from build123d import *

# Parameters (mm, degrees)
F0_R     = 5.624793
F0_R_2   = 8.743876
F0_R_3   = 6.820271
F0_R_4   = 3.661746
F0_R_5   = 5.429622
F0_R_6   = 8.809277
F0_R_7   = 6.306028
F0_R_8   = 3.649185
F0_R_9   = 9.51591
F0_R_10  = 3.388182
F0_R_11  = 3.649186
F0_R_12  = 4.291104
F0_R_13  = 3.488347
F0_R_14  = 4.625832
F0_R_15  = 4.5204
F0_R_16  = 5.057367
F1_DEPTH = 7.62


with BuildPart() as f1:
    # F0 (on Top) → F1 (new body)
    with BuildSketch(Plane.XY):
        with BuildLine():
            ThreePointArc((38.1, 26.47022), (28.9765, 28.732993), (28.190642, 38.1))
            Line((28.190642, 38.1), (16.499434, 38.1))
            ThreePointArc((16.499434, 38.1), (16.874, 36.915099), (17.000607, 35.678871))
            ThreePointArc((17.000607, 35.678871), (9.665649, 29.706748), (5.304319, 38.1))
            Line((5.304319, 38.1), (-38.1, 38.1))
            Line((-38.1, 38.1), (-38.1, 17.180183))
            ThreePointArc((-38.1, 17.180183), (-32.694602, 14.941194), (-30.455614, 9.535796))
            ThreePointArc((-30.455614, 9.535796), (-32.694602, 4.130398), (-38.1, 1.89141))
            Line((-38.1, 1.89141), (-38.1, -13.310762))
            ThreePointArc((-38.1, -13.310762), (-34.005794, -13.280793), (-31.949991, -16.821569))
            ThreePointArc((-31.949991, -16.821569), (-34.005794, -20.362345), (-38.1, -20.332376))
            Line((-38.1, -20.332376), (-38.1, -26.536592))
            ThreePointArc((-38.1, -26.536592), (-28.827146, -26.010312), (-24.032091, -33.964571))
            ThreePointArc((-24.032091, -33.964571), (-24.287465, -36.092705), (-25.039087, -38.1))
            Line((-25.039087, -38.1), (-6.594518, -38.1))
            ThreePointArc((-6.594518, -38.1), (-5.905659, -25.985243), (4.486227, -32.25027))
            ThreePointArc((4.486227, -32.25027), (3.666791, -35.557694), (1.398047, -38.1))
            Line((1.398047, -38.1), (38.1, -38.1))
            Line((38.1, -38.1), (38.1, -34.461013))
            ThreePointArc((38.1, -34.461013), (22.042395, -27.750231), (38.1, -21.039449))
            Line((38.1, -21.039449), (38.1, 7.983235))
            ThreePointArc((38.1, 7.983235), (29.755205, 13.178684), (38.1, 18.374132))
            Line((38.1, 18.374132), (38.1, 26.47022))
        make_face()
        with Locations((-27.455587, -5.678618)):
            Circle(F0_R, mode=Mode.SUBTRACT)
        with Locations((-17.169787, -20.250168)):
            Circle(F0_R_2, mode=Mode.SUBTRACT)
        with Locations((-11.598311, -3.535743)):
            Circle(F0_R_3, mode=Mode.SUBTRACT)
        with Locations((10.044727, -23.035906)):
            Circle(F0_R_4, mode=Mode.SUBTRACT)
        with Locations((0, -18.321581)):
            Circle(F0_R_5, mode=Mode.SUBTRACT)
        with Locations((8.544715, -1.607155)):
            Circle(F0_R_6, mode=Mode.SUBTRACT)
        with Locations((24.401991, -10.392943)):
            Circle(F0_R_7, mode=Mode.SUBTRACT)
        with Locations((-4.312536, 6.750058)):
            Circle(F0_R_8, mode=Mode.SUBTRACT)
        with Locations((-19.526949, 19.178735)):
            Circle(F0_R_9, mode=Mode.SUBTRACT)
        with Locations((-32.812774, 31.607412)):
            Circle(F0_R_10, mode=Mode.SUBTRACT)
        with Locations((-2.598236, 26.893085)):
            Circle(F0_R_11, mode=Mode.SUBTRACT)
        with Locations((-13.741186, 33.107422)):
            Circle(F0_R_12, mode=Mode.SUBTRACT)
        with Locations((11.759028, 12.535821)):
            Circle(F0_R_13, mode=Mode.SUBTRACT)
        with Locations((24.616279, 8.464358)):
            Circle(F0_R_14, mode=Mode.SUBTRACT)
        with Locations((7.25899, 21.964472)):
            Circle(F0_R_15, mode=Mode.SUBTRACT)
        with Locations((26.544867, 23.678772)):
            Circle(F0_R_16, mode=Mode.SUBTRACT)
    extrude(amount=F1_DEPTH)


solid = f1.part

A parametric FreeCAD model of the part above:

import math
import FreeCAD as App
import Part
import Sketcher
from FreeCAD import Vector
Q = App.Units.Quantity

doc = App.newDocument("Part")
body = doc.addObject("PartDesign::Body", "Body")

# Sketch on XY plane
sketch1 = body.newObject("Sketcher::SketchObject", "Sketch")
sketch1.AttachmentSupport = (doc.getObject("XY_Plane"), [""])
sketch1.MapMode = "FlatFace"
sketch1.addGeometry([
    Part.ArcOfCircle(Part.Circle(Vector(35.1, 34, 0), Vector(0, 0, 1), 8.1), math.radians(149), math.radians(292)),  # 0
    Part.LineSegment(Vector(28.2, 38.1, 0), Vector(16.5, 38.1, 0)),  # 1
    Part.ArcOfCircle(Part.Circle(Vector(10.9, 35.7, 0), Vector(0, 0, 1), 6.1), math.radians(0), math.radians(23)),  # 2
    Part.ArcOfCircle(Part.Circle(Vector(10.9, 35.7, 0), Vector(0, 0, 1), 6.1), math.radians(157), math.radians(360)),  # 3
    Part.LineSegment(Vector(5.3, 38.1, 0), Vector(-38.1, 38.1, 0)),  # 4
    Part.LineSegment(Vector(-38.1, 38.1, 0), Vector(-38.1, 17.2, 0)),  # 5
    Part.ArcOfCircle(Part.Circle(Vector(-38.1, 9.5, 0), Vector(0, 0, 1), 7.6), math.radians(0), math.radians(90)),  # 6
    Part.ArcOfCircle(Part.Circle(Vector(-38.1, 9.5, 0), Vector(0, 0, 1), 7.6), math.radians(-90), math.radians(0)),  # 7
    Part.LineSegment(Vector(-38.1, 1.9, 0), Vector(-38.1, -13.3, 0)),  # 8
    Part.ArcOfCircle(Part.Circle(Vector(-36, -16.8, 0), Vector(0, 0, 1), 4.1), math.radians(0), math.radians(121)),  # 9
    Part.ArcOfCircle(Part.Circle(Vector(-36, -16.8, 0), Vector(0, 0, 1), 4.1), math.radians(-121), math.radians(0)),  # 10
    Part.LineSegment(Vector(-38.1, -20.3, 0), Vector(-38.1, -26.5, 0)),  # 11
    Part.ArcOfCircle(Part.Circle(Vector(-33, -34, 0), Vector(0, 0, 1), 9), math.radians(0), math.radians(124)),  # 12
    Part.ArcOfCircle(Part.Circle(Vector(-33, -34, 0), Vector(0, 0, 1), 9), math.radians(-27), math.radians(0)),  # 13
    Part.LineSegment(Vector(-25, -38.1, 0), Vector(-6.6, -38.1, 0)),  # 14
    Part.ArcOfCircle(Part.Circle(Vector(-2.6, -32.3, 0), Vector(0, 0, 1), 7.1), math.radians(0), math.radians(236)),  # 15
    Part.ArcOfCircle(Part.Circle(Vector(-2.6, -32.3, 0), Vector(0, 0, 1), 7.1), math.radians(-56), math.radians(0)),  # 16
    Part.LineSegment(Vector(1.4, -38.1, 0), Vector(38.1, -38.1, 0)),  # 17
    Part.LineSegment(Vector(38.1, -38.1, 0), Vector(38.1, -34.5, 0)),  # 18
    Part.ArcOfCircle(Part.Circle(Vector(31.5, -27.8, 0), Vector(0, 0, 1), 9.4), math.radians(45), math.radians(315)),  # 19
    Part.LineSegment(Vector(38.1, -21, 0), Vector(38.1, 8, 0)),  # 20
    Part.ArcOfCircle(Part.Circle(Vector(35.5, 13.2, 0), Vector(0, 0, 1), 5.8), math.radians(64), math.radians(296)),  # 21
    Part.LineSegment(Vector(38.1, 18.4, 0), Vector(38.1, 26.5, 0)),  # 22
    Part.Circle(Vector(-17.2, -20.3, 0), Vector(0, 0, 1), 8.7),  # 23
    Part.Circle(Vector(-27.5, -5.7, 0), Vector(0, 0, 1), 5.6),  # 24
    Part.Circle(Vector(-11.6, -3.5, 0), Vector(0, 0, 1), 6.8),  # 25
    Part.Circle(Vector(10, -23, 0), Vector(0, 0, 1), 3.7),  # 26
    Part.Circle(Vector(0, -18.3, 0), Vector(0, 0, 1), 5.4),  # 27
    Part.Circle(Vector(8.5, -1.6, 0), Vector(0, 0, 1), 8.8),  # 28
    Part.Circle(Vector(24.4, -10.4, 0), Vector(0, 0, 1), 6.3),  # 29
    Part.Circle(Vector(-19.5, 19.2, 0), Vector(0, 0, 1), 9.5),  # 30
    Part.Circle(Vector(-4.3, 6.8, 0), Vector(0, 0, 1), 3.6),  # 31
    Part.Circle(Vector(-32.8, 31.6, 0), Vector(0, 0, 1), 3.4),  # 32
    Part.Circle(Vector(-2.6, 26.9, 0), Vector(0, 0, 1), 3.6),  # 33
    Part.Circle(Vector(-13.7, 33.1, 0), Vector(0, 0, 1), 4.3),  # 34
    Part.Circle(Vector(11.8, 12.5, 0), Vector(0, 0, 1), 3.5),  # 35
    Part.Circle(Vector(24.6, 8.5, 0), Vector(0, 0, 1), 4.6),  # 36
    Part.Circle(Vector(7.3, 22, 0), Vector(0, 0, 1), 4.5),  # 37
    Part.Circle(Vector(26.5, 23.7, 0), Vector(0, 0, 1), 5.1),  # 38
], False)
sketch1.addConstraint([
    Sketcher.Constraint("Coincident", 0, 1, 1, 1),
    Sketcher.Constraint("Coincident", 1, 2, 2, 2),
    Sketcher.Constraint("Tangent", 2, 1, 3, 2),
    Sketcher.Constraint("Coincident", 3, 1, 4, 1),
    Sketcher.Constraint("Coincident", 4, 2, 5, 1),
    Sketcher.Constraint("Coincident", 5, 2, 6, 2),
    Sketcher.Constraint("Tangent", 6, 1, 7, 2),
    Sketcher.Constraint("Coincident", 7, 1, 8, 1),
    Sketcher.Constraint("Coincident", 8, 2, 9, 2),
    Sketcher.Constraint("Tangent", 9, 1, 10, 2),
    Sketcher.Constraint("Coincident", 10, 1, 11, 1),
    Sketcher.Constraint("Coincident", 11, 2, 12, 2),
    Sketcher.Constraint("Tangent", 12, 1, 13, 2),
    Sketcher.Constraint("Coincident", 13, 1, 14, 1),
    Sketcher.Constraint("Coincident", 14, 2, 15, 2),
    Sketcher.Constraint("Tangent", 15, 1, 16, 2),
    Sketcher.Constraint("Coincident", 16, 1, 17, 1),
    Sketcher.Constraint("Coincident", 17, 2, 18, 1),
    Sketcher.Constraint("Coincident", 18, 2, 19, 2),
    Sketcher.Constraint("Coincident", 19, 1, 20, 1),
    Sketcher.Constraint("Coincident", 20, 2, 21, 2),
    Sketcher.Constraint("Coincident", 21, 1, 22, 1),
    Sketcher.Constraint("Coincident", 22, 2, 0, 2),
    Sketcher.Constraint("Horizontal", 1),
    Sketcher.Constraint("Horizontal", 4),
    Sketcher.Constraint("Vertical", 5),
    Sketcher.Constraint("Vertical", 8),
    Sketcher.Constraint("Vertical", 11),
    Sketcher.Constraint("Horizontal", 14),
    Sketcher.Constraint("Horizontal", 17),
    Sketcher.Constraint("Vertical", 18),
    Sketcher.Constraint("Vertical", 20),
    Sketcher.Constraint("Vertical", 22),
    Sketcher.Constraint("Equal", 6, 7),
    Sketcher.Constraint("Equal", 9, 10),
    Sketcher.Constraint("Equal", 12, 13),
    Sketcher.Constraint("Equal", 15, 16),
    Sketcher.Constraint("Equal", 31, 33),
    Sketcher.Constraint("Symmetric", 4, 2, 17, 2, -1, 1),
    Sketcher.Constraint("PointOnObject", 27, 3, -2),
    Sketcher.Constraint("Horizontal", 3, 3, 2, 1),
    Sketcher.Constraint("Horizontal", 1, 2, 3, 1),
    Sketcher.Constraint("Horizontal", 10, 3, 9, 1),
    Sketcher.Constraint("Horizontal", 13, 3, 12, 1),
    Sketcher.Constraint("Horizontal", 16, 3, 15, 1),
    Sketcher.Constraint("Horizontal", 14, 2, 16, 1),
    Sketcher.Constraint("Vertical", 16, 3, 33, 3),
    Sketcher.Constraint("Vertical", 6, 3, 4, 2),
    Sketcher.Constraint("Vertical", 5, 2, 7, 1),
    Sketcher.Constraint("Vertical", 8, 2, 10, 1),
    Sketcher.Constraint("Vertical", 18, 2, 19, 1),
    Sketcher.Constraint("Vertical", 20, 2, 21, 1),
    Sketcher.Constraint("DistanceX", 6, 3, -1, 1, Q("1.5 in")),
    Sketcher.Constraint("DistanceY", -1, 1, 0, 1, Q("1.5 in")),
    Sketcher.Constraint("Diameter", 37, Q("9.0408 mm")),
    Sketcher.Constraint("Diameter", 30, Q("19.03182 mm")),
    Sketcher.Constraint("Diameter", 31, Q("7.29837 mm")),
    Sketcher.Constraint("Radius", 3, Q("6.098731 mm")),
    Sketcher.Constraint("Diameter", 23, Q("17.487752 mm")),
    Sketcher.Constraint("Diameter", 24, Q("11.249586 mm")),
    Sketcher.Constraint("Diameter", 25, Q("13.640542 mm")),
    Sketcher.Constraint("Diameter", 26, Q("7.323492 mm")),
    Sketcher.Constraint("Diameter", 27, Q("10.859244 mm")),
    Sketcher.Constraint("Diameter", 28, Q("17.618554 mm")),
    Sketcher.Constraint("Diameter", 29, Q("12.612056 mm")),
    Sketcher.Constraint("Diameter", 32, Q("6.776364 mm")),
    Sketcher.Constraint("Diameter", 34, Q("8.582208 mm")),
    Sketcher.Constraint("Diameter", 35, Q("6.976694 mm")),
    Sketcher.Constraint("Diameter", 36, Q("9.251664 mm")),
    Sketcher.Constraint("Diameter", 38, Q("10.114734 mm")),
    Sketcher.Constraint("Radius", 0, Q("8.066437 mm")),
    Sketcher.Constraint("Radius", 2, Q("6.098715 mm")),
    Sketcher.Constraint("Radius", 6, Q("7.644385 mm")),
    Sketcher.Constraint("Radius", 9, Q("4.077098 mm")),
    Sketcher.Constraint("Radius", 12, Q("8.994973 mm")),
    Sketcher.Constraint("Radius", 15, Q("7.084463 mm")),
    Sketcher.Constraint("Radius", 19, Q("9.431085 mm")),
    Sketcher.Constraint("Radius", 21, Q("5.789734 mm")),
    Sketcher.Constraint("DistanceX", 34, 3, 2, 3, Q("0.9701999 in")),
    Sketcher.Constraint("DistanceX", 4, 2, 4, 1, Q("43.404319 mm")),
    Sketcher.Constraint("DistanceX", 14, 1, 14, 2, Q("18.444569 mm")),
    Sketcher.Constraint("DistanceY", 22, 1, 22, 2, Q("8.096088 mm")),
    Sketcher.Constraint("DistanceY", -1, 1, 6, 3, Q("9.535798 mm")),
    Sketcher.Constraint("DistanceY", 0, 3, 2, 3, Q("1.7143 mm")),
    Sketcher.Constraint("DistanceY", 12, 3, 10, 3, Q("17.143001 mm")),
    Sketcher.Constraint("DistanceY", 12, 3, 15, 3, Q("1.714301 mm")),
    Sketcher.Constraint("DistanceX", 10, 3, 23, 3, Q("18.857302 mm")),
    Sketcher.Constraint("DistanceY", 23, 3, 10, 3, Q("3.428599 mm")),
    Sketcher.Constraint("DistanceX", 9, 3, 24, 3, Q("8.571502 mm")),
    Sketcher.Constraint("DistanceX", 23, 3, 28, 3, Q("25.714502 mm")),
    Sketcher.Constraint("DistanceY", 25, 3, 31, 3, Q("10.285801 mm")),
    Sketcher.Constraint("DistanceX", 31, 3, 33, 3, Q("1.7143 mm")),
    Sketcher.Constraint("DistanceY", 29, 3, 36, 3, Q("18.857301 mm")),
    Sketcher.Constraint("DistanceY", 37, 3, 3, 3, Q("13.714399 mm")),
    Sketcher.Constraint("DistanceX", 38, 3, 0, 3, Q("8.5715 mm")),
    Sketcher.Constraint("DistanceY", 37, 3, 38, 3, Q("1.7143 mm")),
    Sketcher.Constraint("DistanceX", 9, 1, 12, 1, Q("7.9179 mm")),
    Sketcher.Constraint("DistanceX", 13, 1, 23, 3, Q("7.8693 mm")),
    Sketcher.Constraint("DistanceX", 15, 1, 26, 3, Q("5.5585 mm")),
    Sketcher.Constraint("DistanceX", 1, 2, 1, 1, Q("11.691208 mm")),
    Sketcher.Constraint("DistanceX", 17, 1, 17, 2, Q("36.701953 mm")),
    Sketcher.Constraint("DistanceY", 18, 1, 18, 2, Q("3.638987 mm")),
    Sketcher.Constraint("DistanceY", 20, 1, 20, 2, Q("29.022684 mm")),
    Sketcher.Constraint("DistanceY", -1, 1, 3, 3, Q("35.678871 mm")),
    Sketcher.Constraint("DistanceX", -1, 1, 19, 3, Q("31.47348 mm")),
    Sketcher.Constraint("DistanceY", 24, 3, -1, 1, Q("5.678618 mm")),
    Sketcher.Constraint("DistanceX", 25, 3, -1, 1, Q("11.598311 mm")),
    Sketcher.Constraint("DistanceY", 27, 3, -1, 1, Q("18.321581 mm")),
    Sketcher.Constraint("DistanceX", -1, 1, 29, 3, Q("24.401991 mm")),
    Sketcher.Constraint("DistanceX", 30, 3, -1, 1, Q("19.526949 mm")),
    Sketcher.Constraint("DistanceY", -1, 1, 32, 3, Q("31.607412 mm")),
    Sketcher.Constraint("DistanceX", -1, 1, 35, 3, Q("11.759028 mm")),
    Sketcher.Constraint("DistanceY", -1, 1, 35, 3, Q("12.535821 mm")),
    Sketcher.Constraint("DistanceX", -1, 1, 36, 3, Q("24.616279 mm")),
    Sketcher.Constraint("DistanceY", -1, 1, 36, 3, Q("8.464358 mm")),
    Sketcher.Constraint("DistanceX", -1, 1, 37, 3, Q("7.25899 mm")),
    Sketcher.Constraint("DistanceY", 26, 3, 23, 3, Q("2.785738 mm")),
    Sketcher.Constraint("DistanceY", 25, 3, 28, 3, Q("1.928588 mm")),
    Sketcher.Constraint("DistanceY", 26, 3, 28, 3, Q("21.428751 mm")),
    Sketcher.Constraint("DistanceY", 7, 3, 30, 3, Q("9.642942 mm")),
    Sketcher.Constraint("DistanceY", 33, 3, 2, 3, Q("8.78579 mm")),
    Sketcher.Constraint("DistanceY", 32, 3, 34, 3, Q("1.50001 mm")),
    Sketcher.Constraint("DistanceY", 6, 1, 30, 3, Q("9.642939 mm")),
    Sketcher.Constraint("DistanceX", 32, 3, -1, 1, Q("32.812774 mm")),
])
pad1 = body.newObject("PartDesign::Pad", "Pad")
pad1.Profile = sketch1
pad1.Length = Q("0.3 in")

doc.recompute()
